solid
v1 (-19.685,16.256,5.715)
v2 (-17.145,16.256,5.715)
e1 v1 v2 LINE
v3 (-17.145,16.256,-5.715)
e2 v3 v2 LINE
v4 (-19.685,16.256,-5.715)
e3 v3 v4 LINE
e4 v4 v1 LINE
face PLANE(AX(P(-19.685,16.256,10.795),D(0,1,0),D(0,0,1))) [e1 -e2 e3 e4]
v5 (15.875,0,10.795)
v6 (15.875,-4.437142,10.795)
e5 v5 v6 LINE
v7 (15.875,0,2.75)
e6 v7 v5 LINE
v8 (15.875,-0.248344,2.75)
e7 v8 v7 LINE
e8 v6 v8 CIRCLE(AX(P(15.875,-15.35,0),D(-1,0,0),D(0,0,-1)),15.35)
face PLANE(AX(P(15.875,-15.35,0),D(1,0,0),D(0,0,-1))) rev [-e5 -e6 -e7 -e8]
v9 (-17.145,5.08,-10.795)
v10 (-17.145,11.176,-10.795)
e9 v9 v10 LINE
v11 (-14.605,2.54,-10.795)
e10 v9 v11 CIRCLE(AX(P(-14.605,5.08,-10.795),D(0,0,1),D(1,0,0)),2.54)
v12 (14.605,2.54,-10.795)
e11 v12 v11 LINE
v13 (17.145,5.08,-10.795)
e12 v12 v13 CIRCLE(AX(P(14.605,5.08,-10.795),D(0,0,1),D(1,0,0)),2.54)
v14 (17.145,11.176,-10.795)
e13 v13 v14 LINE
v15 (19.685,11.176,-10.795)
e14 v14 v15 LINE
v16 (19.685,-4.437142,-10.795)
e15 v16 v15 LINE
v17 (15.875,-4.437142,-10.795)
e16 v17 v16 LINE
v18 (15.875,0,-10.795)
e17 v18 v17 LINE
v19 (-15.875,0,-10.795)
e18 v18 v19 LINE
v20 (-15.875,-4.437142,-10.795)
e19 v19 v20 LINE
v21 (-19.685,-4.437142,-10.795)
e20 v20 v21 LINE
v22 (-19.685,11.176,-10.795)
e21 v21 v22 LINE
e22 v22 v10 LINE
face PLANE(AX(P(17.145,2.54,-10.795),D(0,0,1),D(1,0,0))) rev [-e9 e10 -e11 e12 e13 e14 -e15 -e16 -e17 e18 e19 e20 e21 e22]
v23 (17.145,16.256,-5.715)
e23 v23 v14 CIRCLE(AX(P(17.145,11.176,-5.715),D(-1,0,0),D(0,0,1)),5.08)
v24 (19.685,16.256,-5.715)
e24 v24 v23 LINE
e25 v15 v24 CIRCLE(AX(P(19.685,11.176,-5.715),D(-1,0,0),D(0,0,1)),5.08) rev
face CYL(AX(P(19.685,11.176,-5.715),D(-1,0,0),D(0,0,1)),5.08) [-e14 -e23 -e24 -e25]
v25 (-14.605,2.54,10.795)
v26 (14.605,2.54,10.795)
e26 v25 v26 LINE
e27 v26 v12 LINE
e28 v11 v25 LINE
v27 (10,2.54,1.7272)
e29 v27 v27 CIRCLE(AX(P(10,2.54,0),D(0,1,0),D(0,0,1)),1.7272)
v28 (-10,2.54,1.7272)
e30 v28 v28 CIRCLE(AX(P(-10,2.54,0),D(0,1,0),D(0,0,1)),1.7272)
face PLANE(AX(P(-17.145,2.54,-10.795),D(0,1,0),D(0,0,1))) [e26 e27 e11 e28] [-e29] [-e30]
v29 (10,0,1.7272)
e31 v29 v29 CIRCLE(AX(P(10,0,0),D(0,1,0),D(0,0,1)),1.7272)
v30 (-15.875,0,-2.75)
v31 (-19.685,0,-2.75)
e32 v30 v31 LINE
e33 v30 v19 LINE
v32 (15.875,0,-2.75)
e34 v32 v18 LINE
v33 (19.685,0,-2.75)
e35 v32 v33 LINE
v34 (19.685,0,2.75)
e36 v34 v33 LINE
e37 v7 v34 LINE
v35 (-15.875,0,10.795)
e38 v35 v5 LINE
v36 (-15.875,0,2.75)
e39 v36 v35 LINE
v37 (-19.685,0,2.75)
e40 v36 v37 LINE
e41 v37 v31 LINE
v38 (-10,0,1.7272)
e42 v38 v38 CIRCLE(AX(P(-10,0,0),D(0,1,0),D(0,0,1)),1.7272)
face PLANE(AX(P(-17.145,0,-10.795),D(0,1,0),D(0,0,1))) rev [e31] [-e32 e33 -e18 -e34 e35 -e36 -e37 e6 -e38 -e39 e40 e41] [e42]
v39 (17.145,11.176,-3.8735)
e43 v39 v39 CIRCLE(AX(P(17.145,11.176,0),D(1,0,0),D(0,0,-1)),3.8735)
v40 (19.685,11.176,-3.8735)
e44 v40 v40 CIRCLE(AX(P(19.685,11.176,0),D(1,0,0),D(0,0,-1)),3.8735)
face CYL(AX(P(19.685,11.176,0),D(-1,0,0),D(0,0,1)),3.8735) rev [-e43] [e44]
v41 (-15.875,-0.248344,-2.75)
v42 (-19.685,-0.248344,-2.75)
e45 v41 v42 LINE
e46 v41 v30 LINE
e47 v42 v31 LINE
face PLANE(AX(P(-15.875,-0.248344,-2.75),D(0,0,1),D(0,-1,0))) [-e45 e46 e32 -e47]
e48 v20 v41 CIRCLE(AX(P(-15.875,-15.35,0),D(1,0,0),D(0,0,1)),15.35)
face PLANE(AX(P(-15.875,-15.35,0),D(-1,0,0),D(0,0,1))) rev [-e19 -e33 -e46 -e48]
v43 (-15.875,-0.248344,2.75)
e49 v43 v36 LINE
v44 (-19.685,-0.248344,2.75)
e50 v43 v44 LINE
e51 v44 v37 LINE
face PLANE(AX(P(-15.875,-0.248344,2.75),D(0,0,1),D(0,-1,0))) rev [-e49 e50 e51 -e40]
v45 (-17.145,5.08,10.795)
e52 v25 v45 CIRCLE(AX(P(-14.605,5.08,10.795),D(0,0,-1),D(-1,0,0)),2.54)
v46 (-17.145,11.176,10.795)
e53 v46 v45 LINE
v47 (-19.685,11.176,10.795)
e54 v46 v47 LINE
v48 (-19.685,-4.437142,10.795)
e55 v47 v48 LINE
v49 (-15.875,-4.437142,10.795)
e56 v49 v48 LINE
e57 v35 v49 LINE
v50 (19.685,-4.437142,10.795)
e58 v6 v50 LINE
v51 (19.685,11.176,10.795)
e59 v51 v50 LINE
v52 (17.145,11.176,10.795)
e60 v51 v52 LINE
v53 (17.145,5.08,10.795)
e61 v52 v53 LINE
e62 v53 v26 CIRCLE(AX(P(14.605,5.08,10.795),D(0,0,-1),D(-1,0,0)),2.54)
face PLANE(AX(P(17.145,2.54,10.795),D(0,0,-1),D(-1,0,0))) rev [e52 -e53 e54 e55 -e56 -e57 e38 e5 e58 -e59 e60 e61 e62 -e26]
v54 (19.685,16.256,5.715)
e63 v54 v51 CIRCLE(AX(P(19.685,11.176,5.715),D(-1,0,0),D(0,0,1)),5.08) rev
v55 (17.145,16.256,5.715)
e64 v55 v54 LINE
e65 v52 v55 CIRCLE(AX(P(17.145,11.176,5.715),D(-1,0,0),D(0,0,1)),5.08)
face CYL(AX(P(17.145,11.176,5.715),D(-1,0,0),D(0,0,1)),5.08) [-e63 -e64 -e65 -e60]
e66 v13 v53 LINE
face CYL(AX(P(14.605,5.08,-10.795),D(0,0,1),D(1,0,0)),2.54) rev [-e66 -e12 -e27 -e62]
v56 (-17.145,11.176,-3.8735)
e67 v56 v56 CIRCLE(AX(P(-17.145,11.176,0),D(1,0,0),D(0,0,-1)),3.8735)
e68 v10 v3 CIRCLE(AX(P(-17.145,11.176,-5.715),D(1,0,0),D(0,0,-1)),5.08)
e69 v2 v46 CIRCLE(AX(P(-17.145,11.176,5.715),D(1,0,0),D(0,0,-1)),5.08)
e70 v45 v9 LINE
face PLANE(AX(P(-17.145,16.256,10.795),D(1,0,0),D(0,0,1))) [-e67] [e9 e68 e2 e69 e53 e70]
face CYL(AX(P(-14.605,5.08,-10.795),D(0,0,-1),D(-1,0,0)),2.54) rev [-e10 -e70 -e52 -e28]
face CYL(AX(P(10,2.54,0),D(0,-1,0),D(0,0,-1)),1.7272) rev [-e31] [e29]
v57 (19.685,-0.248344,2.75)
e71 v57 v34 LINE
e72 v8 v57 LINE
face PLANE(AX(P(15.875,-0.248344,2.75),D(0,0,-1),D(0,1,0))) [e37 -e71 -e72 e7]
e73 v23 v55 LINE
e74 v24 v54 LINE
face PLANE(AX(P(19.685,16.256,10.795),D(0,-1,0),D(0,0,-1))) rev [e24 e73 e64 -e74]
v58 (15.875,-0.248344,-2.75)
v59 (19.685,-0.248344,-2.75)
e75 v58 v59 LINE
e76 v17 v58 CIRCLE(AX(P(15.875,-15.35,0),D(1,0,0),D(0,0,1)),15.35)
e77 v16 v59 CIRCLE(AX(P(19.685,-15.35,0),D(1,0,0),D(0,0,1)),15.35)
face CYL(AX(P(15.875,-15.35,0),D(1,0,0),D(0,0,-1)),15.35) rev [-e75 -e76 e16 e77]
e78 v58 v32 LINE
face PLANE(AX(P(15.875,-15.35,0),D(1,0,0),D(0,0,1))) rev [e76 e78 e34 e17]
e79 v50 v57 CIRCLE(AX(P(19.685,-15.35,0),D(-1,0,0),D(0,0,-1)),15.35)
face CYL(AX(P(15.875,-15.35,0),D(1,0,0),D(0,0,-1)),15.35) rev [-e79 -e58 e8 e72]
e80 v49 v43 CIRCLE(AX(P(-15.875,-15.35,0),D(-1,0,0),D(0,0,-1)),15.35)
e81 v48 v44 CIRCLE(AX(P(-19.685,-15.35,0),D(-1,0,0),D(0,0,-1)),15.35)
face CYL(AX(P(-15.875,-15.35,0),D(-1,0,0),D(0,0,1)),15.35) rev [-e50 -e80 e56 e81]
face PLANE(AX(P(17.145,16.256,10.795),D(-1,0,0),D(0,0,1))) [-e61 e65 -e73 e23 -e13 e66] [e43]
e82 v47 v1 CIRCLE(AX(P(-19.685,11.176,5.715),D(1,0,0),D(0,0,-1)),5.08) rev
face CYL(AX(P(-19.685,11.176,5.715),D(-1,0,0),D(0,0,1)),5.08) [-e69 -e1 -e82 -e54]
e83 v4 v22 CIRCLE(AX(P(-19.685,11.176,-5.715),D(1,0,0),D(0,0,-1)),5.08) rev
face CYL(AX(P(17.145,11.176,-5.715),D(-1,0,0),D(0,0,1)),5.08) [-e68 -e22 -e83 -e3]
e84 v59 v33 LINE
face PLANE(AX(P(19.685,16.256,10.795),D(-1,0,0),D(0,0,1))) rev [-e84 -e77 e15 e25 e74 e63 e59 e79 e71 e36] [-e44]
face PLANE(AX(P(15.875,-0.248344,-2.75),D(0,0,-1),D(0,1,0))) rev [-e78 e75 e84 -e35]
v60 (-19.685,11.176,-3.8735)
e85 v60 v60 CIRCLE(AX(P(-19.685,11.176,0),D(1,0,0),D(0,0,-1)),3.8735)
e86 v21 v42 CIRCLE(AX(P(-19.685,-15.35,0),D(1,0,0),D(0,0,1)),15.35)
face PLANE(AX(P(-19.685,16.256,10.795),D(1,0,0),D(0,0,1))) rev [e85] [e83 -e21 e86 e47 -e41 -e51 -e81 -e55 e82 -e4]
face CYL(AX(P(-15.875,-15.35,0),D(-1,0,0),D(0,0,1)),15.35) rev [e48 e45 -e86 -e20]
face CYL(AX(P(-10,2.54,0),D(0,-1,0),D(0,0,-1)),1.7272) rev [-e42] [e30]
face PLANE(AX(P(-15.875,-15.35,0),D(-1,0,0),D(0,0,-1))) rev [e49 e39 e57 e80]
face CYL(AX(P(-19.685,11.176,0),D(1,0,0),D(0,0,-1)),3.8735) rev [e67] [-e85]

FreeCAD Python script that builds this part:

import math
import FreeCAD as App
import Part
import Sketcher
from FreeCAD import Vector
Q = App.Units.Quantity


def edges_at(feature, points):
    """Names of the edges that pass closest to the given points."""
    edges = feature.Shape.Edges
    near = lambda p: min(range(len(edges)), key=lambda i: edges[i].distToShape(Part.Vertex(*p))[0])
    return sorted({f"Edge{near(p) + 1}" for p in points})


def add_polygon(sketch, points):
    """Adds a closed chain of lines whose ends are joined by coincident constraints."""
    first, n = sketch.GeometryCount, len(points)
    for a, b in zip(points, points[1:] + points[:1]):
        sketch.addGeometry(Part.LineSegment(App.Vector(*a, 0), App.Vector(*b, 0)), False)
    for i in range(n):
        sketch.addConstraint(Sketcher.Constraint("Coincident", first + i, 2, first + (i + 1) % n, 1))

doc = App.newDocument("Part")
body = doc.addObject("PartDesign::Body", "Body")

# Sketch on XZ plane
sketch1 = body.newObject("Sketcher::SketchObject", "Sketch")
sketch1.AttachmentSupport = (doc.getObject("XZ_Plane"), [""])
sketch1.MapMode = "FlatFace"
add_polygon(sketch1, [(-17.145, -10.795), (-17.145, 10.795), (17.145, 10.795), (17.145, -10.795)])  # lines 0-3
sketch1.addGeometry(Part.Circle(Vector(-10, 0, 0), Vector(0, 0, 1), 1.7272), False)  # 4
sketch1.addGeometry(Part.Circle(Vector(10, 0, 0), Vector(0, 0, 1), 1.7272), False)  # 5
sketch1.addConstraint([
    Sketcher.Constraint("Vertical", 0),
    Sketcher.Constraint("Horizontal", 1),
    Sketcher.Constraint("Vertical", 2),
    Sketcher.Constraint("Horizontal", 3),
    Sketcher.Constraint("Equal", 4, 5),
    Sketcher.Constraint("Symmetric", 4, 3, 5, 3, -1, 1),
    Sketcher.Constraint("Symmetric", 0, 2, 2, 2, -1, 1),
    Sketcher.Constraint("PointOnObject", 4, 3, -1),
    Sketcher.Constraint("Diameter", 4, Q("0.136 in")),
    Sketcher.Constraint("DistanceX", 1, 1, 1, 2, Q("1.35 in")),
    Sketcher.Constraint("DistanceY", 0, 1, 0, 2, Q("0.85 in")),
    Sketcher.Constraint("DistanceX", 4, 3, -1, 1, 10.0),
])
pad1 = body.newObject("PartDesign::Pad", "Pad")
pad1.Profile = sketch1
pad1.Length = Q("0.1 in")
pad1.Reversed = True

# Sketch on YZ plane
sketch2 = body.newObject("Sketcher::SketchObject", "Sketch001")
sketch2.AttachmentSupport = (doc.getObject("YZ_Plane"), [""])
sketch2.MapMode = "FlatFace"
sketch2.AttachmentOffset = App.Placement(Vector(0, 0, 0.675 * 25.4), App.Rotation())
add_polygon(sketch2, [(16.256, 10.795), (0, 10.795), (0, -10.795), (16.256, -10.795)])  # lines 0-3
sketch2.addGeometry(Part.Circle(Vector(11.176, 0, 0), Vector(0, 0, 1), 3.8735), False)  # 4
sketch2.addConstraint([
    Sketcher.Constraint("Horizontal", 0),
    Sketcher.Constraint("Vertical", 1),
    Sketcher.Constraint("Horizontal", 2),
    Sketcher.Constraint("Vertical", 3),
    Sketcher.Constraint("Symmetric", 0, 2, 1, 2, -1, 1),
    Sketcher.Constraint("PointOnObject", 4, 3, -1),
    Sketcher.Constraint("Diameter", 4, Q("0.305 in")),
    Sketcher.Constraint("DistanceX", 0, 2, 0, 1, Q("0.64 in")),
    Sketcher.Constraint("DistanceY", 1, 2, 1, 1, Q("0.85 in")),
    Sketcher.Constraint("DistanceX", 4, 3, 2, 2, Q("0.2 in")),
])
pad2 = body.newObject("PartDesign::Pad", "Pad001")
pad2.Profile = sketch2
pad2.Length = Q("0.1 in")
doc.recompute()

mirrored = body.newObject("PartDesign::Mirrored", "Mirrored")
mirrored.Originals = [pad2]
mirrored.MirrorPlane = (doc.getObject("YZ_Plane"), [""])
body.Tip = mirrored
doc.recompute()

fillet = body.newObject("PartDesign::Fillet", "Fillet")
fillet.Base = (mirrored, edges_at(mirrored, [
    (-18.415, 16.256, -10.795),
    (-18.415, 16.256, 10.795),
    (18.415, 16.256, 10.795),
    (18.415, 16.256, -10.795),
]))
fillet.Radius = Q("0.2 in")

# Sketch on YZ plane
sketch3 = body.newObject("Sketcher::SketchObject", "Sketch002")
sketch3.AttachmentSupport = (doc.getObject("YZ_Plane"), [""])
sketch3.MapMode = "FlatFace"
sketch3.AttachmentOffset = App.Placement(Vector(0, 0, -0.775 * 25.4), App.Rotation())
sketch3.addGeometry([
    Part.LineSegment(Vector(0, -10.795, 0), Vector(-4.437142, -10.795, 0)),
    Part.ArcOfCircle(Part.Circle(Vector(-15.35, 0, 0), Vector(0, 0, 1), 15.35), math.radians(-44.688928), math.radians(-10.320434)),
    Part.LineSegment(Vector(-0.248344, -2.75, 0), Vector(0, -2.75, 0)),
    Part.LineSegment(Vector(0, -2.75, 0), Vector(0, -10.795, 0)),
], False)
sketch3.addConstraint([
    Sketcher.Constraint("Coincident", 0, 2, 1, 1),
    Sketcher.Constraint("Coincident", 1, 2, 2, 1),
    Sketcher.Constraint("Coincident", 2, 2, 3, 1),
    Sketcher.Constraint("Coincident", 3, 2, 0, 1),
    Sketcher.Constraint("Horizontal", 0),
    Sketcher.Constraint("Horizontal", 2),
    Sketcher.Constraint("Vertical", 3),
    Sketcher.Constraint("PointOnObject", 1, 3, -1),
    Sketcher.Constraint("PointOnObject", 2, 2, -2),
    Sketcher.Constraint("Radius", 1, 15.35),
    Sketcher.Constraint("DistanceY", 0, 2, -1, 1, Q("0.425 in")),
    Sketcher.Constraint("DistanceY", 3, 2, 3, 1, 8.045),
    Sketcher.Constraint("DistanceX", 0, 2, 0, 1, 4.437142),
])
pad3 = body.newObject("PartDesign::Pad", "Pad002")
pad3.Profile = sketch3
pad3.Length = Q("0.15 in")
doc.recompute()

mirrored2 = body.newObject("PartDesign::Mirrored", "Mirrored001")
mirrored2.Originals = [pad3]
mirrored2.MirrorPlane = (doc.getObject("XY_Plane"), [""])
body.Tip = mirrored2
doc.recompute()

mirrored3 = body.newObject("PartDesign::Mirrored", "Mirrored002")
mirrored3.Originals = [pad3]
mirrored3.MirrorPlane = (doc.getObject("YZ_Plane"), [""])
body.Tip = mirrored3

# Sketch on YZ plane
sketch4 = body.newObject("Sketcher::SketchObject", "Sketch003")
sketch4.AttachmentSupport = (doc.getObject("YZ_Plane"), [""])
sketch4.MapMode = "FlatFace"
sketch4.AttachmentOffset = App.Placement(Vector(0, 0, 0.775 * 25.4), App.Rotation())
sketch4.addGeometry([
    Part.LineSegment(Vector(0, 10.795, 0), Vector(-4.437142, 10.795, 0)),
    Part.ArcOfCircle(Part.Circle(Vector(-15.35, 0, 0), Vector(0, 0, 1), 15.35), math.radians(10.320434), math.radians(44.688928)),
    Part.LineSegment(Vector(-0.248344, 2.75, 0), Vector(0, 2.75, 0)),
    Part.LineSegment(Vector(0, 2.75, 0), Vector(0, 10.795, 0)),
], False)
sketch4.addConstraint([
    Sketcher.Constraint("Coincident", 0, 2, 1, 2),
    Sketcher.Constraint("Coincident", 1, 1, 2, 1),
    Sketcher.Constraint("Coincident", 2, 2, 3, 1),
    Sketcher.Constraint("Coincident", 3, 2, 0, 1),
    Sketcher.Constraint("Horizontal", 0),
    Sketcher.Constraint("Horizontal", 2),
    Sketcher.Constraint("Vertical", 3),
    Sketcher.Constraint("PointOnObject", 1, 3, -1),
    Sketcher.Constraint("PointOnObject", 2, 2, -2),
    Sketcher.Constraint("Radius", 1, 15.35),
    Sketcher.Constraint("DistanceY", -1, 1, 0, 2, Q("0.425 in")),
    Sketcher.Constraint("DistanceY", 3, 1, 3, 2, 8.045),
    Sketcher.Constraint("DistanceX", 0, 2, 0, 1, 4.437142),
])
pad4 = body.newObject("PartDesign::Pad", "Pad003")
pad4.Profile = sketch4
pad4.Length = Q("0.15 in")
pad4.Reversed = True
doc.recompute()

fillet2 = body.newObject("PartDesign::Fillet", "Fillet001")
fillet2.Base = (pad4, edges_at(pad4, [(-17.145, 2.54, 0), (17.145, 2.54, 0)]))
fillet2.Radius = Q("0.1 in")

doc.recompute()
